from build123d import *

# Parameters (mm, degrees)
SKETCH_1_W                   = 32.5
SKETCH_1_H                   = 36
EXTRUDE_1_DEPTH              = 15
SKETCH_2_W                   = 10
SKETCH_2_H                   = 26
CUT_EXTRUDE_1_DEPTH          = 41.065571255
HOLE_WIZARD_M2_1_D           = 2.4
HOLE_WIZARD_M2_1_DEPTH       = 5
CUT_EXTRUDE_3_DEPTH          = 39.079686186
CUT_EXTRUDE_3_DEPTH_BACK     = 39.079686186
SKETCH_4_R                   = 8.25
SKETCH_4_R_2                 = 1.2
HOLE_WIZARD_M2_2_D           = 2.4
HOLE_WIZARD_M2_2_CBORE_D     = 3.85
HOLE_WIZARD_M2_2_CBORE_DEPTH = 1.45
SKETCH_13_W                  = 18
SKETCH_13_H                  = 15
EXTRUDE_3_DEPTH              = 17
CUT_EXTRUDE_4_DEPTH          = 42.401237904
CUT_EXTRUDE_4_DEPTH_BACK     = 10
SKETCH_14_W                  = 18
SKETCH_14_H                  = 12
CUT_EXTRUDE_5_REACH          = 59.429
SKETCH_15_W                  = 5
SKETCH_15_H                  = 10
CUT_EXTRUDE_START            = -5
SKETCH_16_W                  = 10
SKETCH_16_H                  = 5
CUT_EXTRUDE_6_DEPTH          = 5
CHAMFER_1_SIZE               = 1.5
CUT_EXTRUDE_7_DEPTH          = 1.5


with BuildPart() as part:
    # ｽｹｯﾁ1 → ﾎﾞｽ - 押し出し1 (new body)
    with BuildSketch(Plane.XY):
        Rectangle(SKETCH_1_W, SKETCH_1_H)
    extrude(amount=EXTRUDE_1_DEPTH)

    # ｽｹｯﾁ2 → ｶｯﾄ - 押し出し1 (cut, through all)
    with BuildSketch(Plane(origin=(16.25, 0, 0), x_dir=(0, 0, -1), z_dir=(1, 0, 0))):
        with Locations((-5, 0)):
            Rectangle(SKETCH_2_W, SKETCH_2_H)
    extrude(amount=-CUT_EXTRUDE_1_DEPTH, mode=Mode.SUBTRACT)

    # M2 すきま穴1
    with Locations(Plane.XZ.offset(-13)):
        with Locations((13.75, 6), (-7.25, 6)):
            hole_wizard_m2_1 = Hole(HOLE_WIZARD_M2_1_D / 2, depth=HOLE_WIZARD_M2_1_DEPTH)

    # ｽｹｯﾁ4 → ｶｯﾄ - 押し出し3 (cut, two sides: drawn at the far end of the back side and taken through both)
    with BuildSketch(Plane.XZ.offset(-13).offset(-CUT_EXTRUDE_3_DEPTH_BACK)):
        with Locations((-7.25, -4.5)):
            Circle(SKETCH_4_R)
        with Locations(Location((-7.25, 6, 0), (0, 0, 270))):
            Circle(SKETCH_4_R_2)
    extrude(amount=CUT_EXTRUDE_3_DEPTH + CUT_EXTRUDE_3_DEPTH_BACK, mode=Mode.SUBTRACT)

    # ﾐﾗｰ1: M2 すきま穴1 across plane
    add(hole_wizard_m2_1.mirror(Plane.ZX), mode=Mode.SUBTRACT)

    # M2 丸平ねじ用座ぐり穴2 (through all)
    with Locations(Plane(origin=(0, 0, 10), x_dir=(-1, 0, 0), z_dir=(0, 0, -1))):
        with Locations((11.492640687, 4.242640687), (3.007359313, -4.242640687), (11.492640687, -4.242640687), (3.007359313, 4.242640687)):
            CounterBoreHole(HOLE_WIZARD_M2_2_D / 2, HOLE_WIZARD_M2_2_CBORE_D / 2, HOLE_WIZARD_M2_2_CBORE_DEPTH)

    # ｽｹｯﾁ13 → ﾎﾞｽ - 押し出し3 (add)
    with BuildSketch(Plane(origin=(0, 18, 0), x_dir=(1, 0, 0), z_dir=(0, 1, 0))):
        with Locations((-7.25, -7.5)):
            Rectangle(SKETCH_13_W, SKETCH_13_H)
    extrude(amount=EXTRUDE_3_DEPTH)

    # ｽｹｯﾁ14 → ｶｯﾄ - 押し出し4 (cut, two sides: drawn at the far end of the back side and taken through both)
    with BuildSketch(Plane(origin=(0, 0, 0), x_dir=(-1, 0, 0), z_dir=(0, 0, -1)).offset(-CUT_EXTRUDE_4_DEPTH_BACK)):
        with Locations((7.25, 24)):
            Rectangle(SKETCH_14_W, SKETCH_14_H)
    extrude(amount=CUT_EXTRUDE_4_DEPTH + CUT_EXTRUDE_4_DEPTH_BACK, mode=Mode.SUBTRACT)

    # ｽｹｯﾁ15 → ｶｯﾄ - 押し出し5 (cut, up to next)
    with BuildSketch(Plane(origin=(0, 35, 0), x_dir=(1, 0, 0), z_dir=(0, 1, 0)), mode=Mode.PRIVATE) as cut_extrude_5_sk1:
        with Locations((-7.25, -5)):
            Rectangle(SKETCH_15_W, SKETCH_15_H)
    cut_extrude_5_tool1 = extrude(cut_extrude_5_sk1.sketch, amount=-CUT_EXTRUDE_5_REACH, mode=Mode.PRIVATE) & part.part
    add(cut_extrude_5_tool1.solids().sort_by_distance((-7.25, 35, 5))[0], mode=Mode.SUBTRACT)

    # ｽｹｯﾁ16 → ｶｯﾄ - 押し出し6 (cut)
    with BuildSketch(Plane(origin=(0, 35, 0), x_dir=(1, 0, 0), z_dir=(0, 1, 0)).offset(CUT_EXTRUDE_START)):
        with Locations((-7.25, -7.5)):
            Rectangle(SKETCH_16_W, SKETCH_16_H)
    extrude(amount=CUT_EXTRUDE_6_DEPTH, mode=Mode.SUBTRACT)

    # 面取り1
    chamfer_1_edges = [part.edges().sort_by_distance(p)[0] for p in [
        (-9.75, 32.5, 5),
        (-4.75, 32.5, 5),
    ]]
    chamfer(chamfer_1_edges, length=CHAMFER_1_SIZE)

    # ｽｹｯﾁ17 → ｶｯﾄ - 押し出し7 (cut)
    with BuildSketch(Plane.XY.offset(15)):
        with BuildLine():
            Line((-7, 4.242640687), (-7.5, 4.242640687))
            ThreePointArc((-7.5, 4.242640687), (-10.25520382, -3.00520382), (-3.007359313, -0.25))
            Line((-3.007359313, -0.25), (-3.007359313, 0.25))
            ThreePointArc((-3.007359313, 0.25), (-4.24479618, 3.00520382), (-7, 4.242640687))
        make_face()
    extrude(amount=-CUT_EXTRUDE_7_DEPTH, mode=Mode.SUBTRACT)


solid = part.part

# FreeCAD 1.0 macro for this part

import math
import FreeCAD as App
import Part
import Sketcher

V = App.Vector


def edges_at(feature, points):
    """Names of the edges that pass closest to the given points."""
    edges = feature.Shape.Edges
    near = lambda p: min(range(len(edges)), key=lambda i: edges[i].distToShape(Part.Vertex(*p))[0])
    return sorted({f"Edge{near(p) + 1}" for p in points})

doc = App.newDocument("Part")
body = doc.addObject("PartDesign::Body", "Body")

# Sketch on XY plane
sketch1 = body.newObject("Sketcher::SketchObject", "Sketch")
sketch1.AttachmentSupport = (doc.getObject("XY_Plane"), [""])
sketch1.MapMode = "FlatFace"
sketch1.addGeometry(Part.LineSegment(V(-16.25, 18, 0), V(-16.25, -18, 0)), False)
sketch1.addGeometry(Part.LineSegment(V(-16.25, -18, 0), V(16.25, -18, 0)), False)
sketch1.addGeometry(Part.LineSegment(V(16.25, -18, 0), V(16.25, 18, 0)), False)
sketch1.addGeometry(Part.LineSegment(V(16.25, 18, 0), V(-16.25, 18, 0)), False)
sketch1.addConstraint(Sketcher.Constraint("Coincident", 0, 2, 1, 1))
sketch1.addConstraint(Sketcher.Constraint("Coincident", 1, 2, 2, 1))
sketch1.addConstraint(Sketcher.Constraint("Coincident", 2, 2, 3, 1))
sketch1.addConstraint(Sketcher.Constraint("Coincident", 3, 2, 0, 1))
sketch1.addConstraint(Sketcher.Constraint("Vertical", 0))
sketch1.addConstraint(Sketcher.Constraint("Horizontal", 1))
sketch1.addConstraint(Sketcher.Constraint("Vertical", 2))
sketch1.addConstraint(Sketcher.Constraint("Horizontal", 3))
sketch1.addConstraint(Sketcher.Constraint("Symmetric", 0, 2, 2, 2, -1, 1))
sketch1.addConstraint(Sketcher.Constraint("DistanceY", 0, 2, 0, 1, 36.0))
sketch1.addConstraint(Sketcher.Constraint("DistanceX", 1, 1, 1, 2, 32.5))
pad1 = body.newObject("PartDesign::Pad", "Pad")
pad1.Profile = sketch1
pad1.Length = 15

# Sketch on YZ plane
sketch2 = body.newObject("Sketcher::SketchObject", "Sketch001")
sketch2.AttachmentSupport = (doc.getObject("YZ_Plane"), [""])
sketch2.MapMode = "FlatFace"
sketch2.AttachmentOffset = App.Placement(V(0, 0, 16.25), App.Rotation())
sketch2.addGeometry(Part.LineSegment(V(13, 10, 0), V(-13, 10, 0)), False)
sketch2.addGeometry(Part.LineSegment(V(-13, 10, 0), V(-13, 0, 0)), False)
sketch2.addGeometry(Part.LineSegment(V(-13, 0, 0), V(13, 0, 0)), False)
sketch2.addGeometry(Part.LineSegment(V(13, 0, 0), V(13, 10, 0)), False)
sketch2.addConstraint(Sketcher.Constraint("Coincident", 0, 2, 1, 1))
sketch2.addConstraint(Sketcher.Constraint("Coincident", 1, 2, 2, 1))
sketch2.addConstraint(Sketcher.Constraint("Coincident", 2, 2, 3, 1))
sketch2.addConstraint(Sketcher.Constraint("Coincident", 3, 2, 0, 1))
sketch2.addConstraint(Sketcher.Constraint("Horizontal", 0))
sketch2.addConstraint(Sketcher.Constraint("Vertical", 1))
sketch2.addConstraint(Sketcher.Constraint("Horizontal", 2))
sketch2.addConstraint(Sketcher.Constraint("Vertical", 3))
sketch2.addConstraint(Sketcher.Constraint("Symmetric", 1, 2, 2, 2, -1, 1))
sketch2.addConstraint(Sketcher.Constraint("DistanceX", 0, 2, 0, 1, 26.0))
sketch2.addConstraint(Sketcher.Constraint("DistanceY", 1, 2, 1, 1, 10.0))
pocket1 = body.newObject("PartDesign::Pocket", "Pocket")
pocket1.Profile = sketch2
pocket1.Type = "ThroughAll"

# Sketch on XZ plane
sketch3 = body.newObject("Sketcher::SketchObject", "Sketch002")
sketch3.AttachmentSupport = (doc.getObject("XZ_Plane"), [""])
sketch3.MapMode = "FlatFace"
sketch3.AttachmentOffset = App.Placement(V(0, 0, -13), App.Rotation())
sketch3.addGeometry(Part.Circle(V(13.75, 6, 0), V(0, 0, 1), 1.2), False)
sketch3.addGeometry(Part.Circle(V(-7.25, 6, 0), V(0, 0, 1), 1.2), False)
sketch3.addConstraint(Sketcher.Constraint("Equal", 0, 1))
sketch3.addConstraint(Sketcher.Constraint("Horizontal", 0, 3, 1, 3))
sketch3.addConstraint(Sketcher.Constraint("Diameter", 0, 2.4))
sketch3.addConstraint(Sketcher.Constraint("DistanceY", -1, 1, 0, 3, 6.0))
sketch3.addConstraint(Sketcher.Constraint("DistanceX", 1, 3, 0, 3, 21.0))
sketch3.addConstraint(Sketcher.Constraint("DistanceX", -1, 1, 0, 3, 13.75))
doc.recompute()
hole = body.newObject("PartDesign::Hole", "Hole")
hole.Profile = sketch3
hole.ThreadType = "None"
hole.Diameter = 2.4
hole.DepthType = "Dimension"
hole.Depth = 5
hole.DrillPoint = "Flat"

# Sketch on XZ plane
sketch4 = body.newObject("Sketcher::SketchObject", "Sketch003")
sketch4.AttachmentSupport = (doc.getObject("XZ_Plane"), [""])
sketch4.MapMode = "FlatFace"
sketch4.AttachmentOffset = App.Placement(V(0, 0, -13), App.Rotation())
sketch4.addGeometry(Part.Circle(V(-7.25, -4.5, 0), V(0, 0, 1), 8.25), False)
sketch4.addGeometry(Part.Circle(V(-7.25, 6, 0), V(0, 0, 1), 1.2), False)
sketch4.addConstraint(Sketcher.Constraint("Vertical", 0, 3, 1, 3))
sketch4.addConstraint(Sketcher.Constraint("Diameter", 0, 16.5))
sketch4.addConstraint(Sketcher.Constraint("Diameter", 1, 2.4))
sketch4.addConstraint(Sketcher.Constraint("DistanceY", -1, 1, 1, 3, 6.0))
sketch4.addConstraint(Sketcher.Constraint("DistanceY", 0, 3, -1, 1, 4.5))
sketch4.addConstraint(Sketcher.Constraint("DistanceX", 0, 3, -1, 1, 7.25))
pocket2 = body.newObject("PartDesign::Pocket", "Pocket001")
pocket2.Profile = sketch4
pocket2.Type = "ThroughAll"
pocket2.Midplane = True
doc.recompute()

mirrored = body.newObject("PartDesign::Mirrored", "Mirrored")
mirrored.Originals = [hole]
mirrored.MirrorPlane = (doc.getObject("XZ_Plane"), [""])
body.Tip = mirrored

# Sketch on XY plane
sketch5 = body.newObject("Sketcher::SketchObject", "Sketch004")
sketch5.AttachmentSupport = (doc.getObject("XY_Plane"), [""])
sketch5.MapMode = "FlatFace"
sketch5.AttachmentOffset = App.Placement(V(0, 0, 10), App.Rotation())
sketch5.addGeometry(Part.Circle(V(-11.492641, 4.242641, 0), V(0, 0, 1), 1.2), False)
sketch5.addGeometry(Part.Circle(V(-3.007359, -4.242641, 0), V(0, 0, 1), 1.2), False)
sketch5.addGeometry(Part.Circle(V(-11.492641, -4.242641, 0), V(0, 0, 1), 1.2), False)
sketch5.addGeometry(Part.Circle(V(-3.007359, 4.242641, 0), V(0, 0, 1), 1.2), False)
sketch5.addConstraint(Sketcher.Constraint("Equal", 0, 1))
sketch5.addConstraint(Sketcher.Constraint("Equal", 1, 2))
sketch5.addConstraint(Sketcher.Constraint("Equal", 2, 3))
sketch5.addConstraint(Sketcher.Constraint("Symmetric", 0, 3, 2, 3, -1))
sketch5.addConstraint(Sketcher.Constraint("Symmetric", 1, 3, 3, 3, -1))
sketch5.addConstraint(Sketcher.Constraint("Horizontal", 1, 3, 2, 3))
sketch5.addConstraint(Sketcher.Constraint("Diameter", 0, 2.4))
sketch5.addConstraint(Sketcher.Constraint("DistanceX", 0, 3, -1, 1, 11.492641))
sketch5.addConstraint(Sketcher.Constraint("DistanceY", -1, 1, 0, 3, 4.242641))
sketch5.addConstraint(Sketcher.Constraint("DistanceX", 1, 3, -1, 1, 3.007359))
doc.recompute()
hole2 = body.newObject("PartDesign::Hole", "Hole001")
hole2.Profile = sketch5
hole2.ThreadType = "None"
hole2.Diameter = 2.4
hole2.DepthType = "ThroughAll"
hole2.HoleCutType = "Counterbore"
hole2.HoleCutDiameter = 3.85
hole2.HoleCutDepth = 1.45
hole2.Reversed = True

# Sketch on XZ plane
sketch6 = body.newObject("Sketcher::SketchObject", "Sketch005")
sketch6.AttachmentSupport = (doc.getObject("XZ_Plane"), [""])
sketch6.MapMode = "FlatFace"
sketch6.AttachmentOffset = App.Placement(V(0, 0, -18), App.Rotation())
sketch6.addGeometry(Part.LineSegment(V(-16.25, 0, 0), V(-16.25, 15, 0)), False)
sketch6.addGeometry(Part.LineSegment(V(-16.25, 15, 0), V(1.75, 15, 0)), False)
sketch6.addGeometry(Part.LineSegment(V(1.75, 15, 0), V(1.75, 0, 0)), False)
sketch6.addGeometry(Part.LineSegment(V(1.75, 0, 0), V(-16.25, 0, 0)), False)
sketch6.addConstraint(Sketcher.Constraint("Coincident", 0, 2, 1, 1))
sketch6.addConstraint(Sketcher.Constraint("Coincident", 1, 2, 2, 1))
sketch6.addConstraint(Sketcher.Constraint("Coincident", 2, 2, 3, 1))
sketch6.addConstraint(Sketcher.Constraint("Coincident", 3, 2, 0, 1))
sketch6.addConstraint(Sketcher.Constraint("Vertical", 0))
sketch6.addConstraint(Sketcher.Constraint("Horizontal", 1))
sketch6.addConstraint(Sketcher.Constraint("Vertical", 2))
sketch6.addConstraint(Sketcher.Constraint("Horizontal", 3))
sketch6.addConstraint(Sketcher.Constraint("PointOnObject", 2, 2, -1))
sketch6.addConstraint(Sketcher.Constraint("DistanceX", 1, 1, 1, 2, 18.0))
sketch6.addConstraint(Sketcher.Constraint("DistanceY", 0, 1, 0, 2, 15.0))
sketch6.addConstraint(Sketcher.Constraint("DistanceX", 0, 2, -1, 1, 16.25))
pad2 = body.newObject("PartDesign::Pad", "Pad001")
pad2.Profile = sketch6
pad2.Length = 17
pad2.Reversed = True

# Sketch on XY plane
sketch7 = body.newObject("Sketcher::SketchObject", "Sketch006")
sketch7.AttachmentSupport = (doc.getObject("XY_Plane"), [""])
sketch7.MapMode = "FlatFace"
sketch7.addGeometry(Part.LineSegment(V(1.75, 30, 0), V(1.75, 18, 0)), False)
sketch7.addGeometry(Part.LineSegment(V(1.75, 18, 0), V(-16.25, 18, 0)), False)
sketch7.addGeometry(Part.LineSegment(V(-16.25, 18, 0), V(-16.25, 30, 0)), False)
sketch7.addGeometry(Part.LineSegment(V(-16.25, 30, 0), V(1.75, 30, 0)), False)
sketch7.addConstraint(Sketcher.Constraint("Coincident", 0, 2, 1, 1))
sketch7.addConstraint(Sketcher.Constraint("Coincident", 1, 2, 2, 1))
sketch7.addConstraint(Sketcher.Constraint("Coincident", 2, 2, 3, 1))
sketch7.addConstraint(Sketcher.Constraint("Coincident", 3, 2, 0, 1))
sketch7.addConstraint(Sketcher.Constraint("Vertical", 0))
sketch7.addConstraint(Sketcher.Constraint("Horizontal", 1))
sketch7.addConstraint(Sketcher.Constraint("Vertical", 2))
sketch7.addConstraint(Sketcher.Constraint("Horizontal", 3))
sketch7.addConstraint(Sketcher.Constraint("DistanceX", 1, 2, 1, 1, 18.0))
sketch7.addConstraint(Sketcher.Constraint("DistanceY", 0, 2, 0, 1, 12.0))
sketch7.addConstraint(Sketcher.Constraint("DistanceY", -1, 1, 0, 2, 18.0))
sketch7.addConstraint(Sketcher.Constraint("DistanceX", -1, 1, 0, 2, 1.75))
pocket3 = body.newObject("PartDesign::Pocket", "Pocket002")
pocket3.Profile = sketch7
pocket3.Type = "TwoLengths"
pocket3.Length = 42.401238
pocket3.Length2 = 10

# Sketch on XZ plane
sketch8 = body.newObject("Sketcher::SketchObject", "Sketch007")
sketch8.AttachmentSupport = (doc.getObject("XZ_Plane"), [""])
sketch8.MapMode = "FlatFace"
sketch8.AttachmentOffset = App.Placement(V(0, 0, -35), App.Rotation())
sketch8.addGeometry(Part.LineSegment(V(-9.75, 0, 0), V(-9.75, 10, 0)), False)
sketch8.addGeometry(Part.LineSegment(V(-9.75, 10, 0), V(-4.75, 10, 0)), False)
sketch8.addGeometry(Part.LineSegment(V(-4.75, 10, 0), V(-4.75, 0, 0)), False)
sketch8.addGeometry(Part.LineSegment(V(-4.75, 0, 0), V(-9.75, 0, 0)), False)
sketch8.addConstraint(Sketcher.Constraint("Coincident", 0, 2, 1, 1))
sketch8.addConstraint(Sketcher.Constraint("Coincident", 1, 2, 2, 1))
sketch8.addConstraint(Sketcher.Constraint("Coincident", 2, 2, 3, 1))
sketch8.addConstraint(Sketcher.Constraint("Coincident", 3, 2, 0, 1))
sketch8.addConstraint(Sketcher.Constraint("Vertical", 0))
sketch8.addConstraint(Sketcher.Constraint("Horizontal", 1))
sketch8.addConstraint(Sketcher.Constraint("Vertical", 2))
sketch8.addConstraint(Sketcher.Constraint("Horizontal", 3))
sketch8.addConstraint(Sketcher.Constraint("PointOnObject", 2, 2, -1))
sketch8.addConstraint(Sketcher.Constraint("DistanceX", 1, 1, 1, 2, 5.0))
sketch8.addConstraint(Sketcher.Constraint("DistanceY", 0, 1, 0, 2, 10.0))
sketch8.addConstraint(Sketcher.Constraint("DistanceX", 0, 2, -1, 1, 9.75))
pocket4 = body.newObject("PartDesign::Pocket", "Pocket003")
pocket4.Profile = sketch8
pocket4.Type = "UpToFirst"
pocket4.Reversed = True

# Sketch on XZ plane
sketch9 = body.newObject("Sketcher::SketchObject", "Sketch008")
sketch9.AttachmentSupport = (doc.getObject("XZ_Plane"), [""])
sketch9.MapMode = "FlatFace"
sketch9.AttachmentOffset = App.Placement(V(0, 0, -30), App.Rotation())
sketch9.addGeometry(Part.LineSegment(V(-12.25, 5, 0), V(-12.25, 10, 0)), False)
sketch9.addGeometry(Part.LineSegment(V(-12.25, 10, 0), V(-2.25, 10, 0)), False)
sketch9.addGeometry(Part.LineSegment(V(-2.25, 10, 0), V(-2.25, 5, 0)), False)
sketch9.addGeometry(Part.LineSegment(V(-2.25, 5, 0), V(-12.25, 5, 0)), False)
sketch9.addConstraint(Sketcher.Constraint("Coincident", 0, 2, 1, 1))
sketch9.addConstraint(Sketcher.Constraint("Coincident", 1, 2, 2, 1))
sketch9.addConstraint(Sketcher.Constraint("Coincident", 2, 2, 3, 1))
sketch9.addConstraint(Sketcher.Constraint("Coincident", 3, 2, 0, 1))
sketch9.addConstraint(Sketcher.Constraint("Vertical", 0))
sketch9.addConstraint(Sketcher.Constraint("Horizontal", 1))
sketch9.addConstraint(Sketcher.Constraint("Vertical", 2))
sketch9.addConstraint(Sketcher.Constraint("Horizontal", 3))
sketch9.addConstraint(Sketcher.Constraint("DistanceX", 1, 1, 1, 2, 10.0))
sketch9.addConstraint(Sketcher.Constraint("DistanceY", 0, 1, 0, 2, 5.0))
sketch9.addConstraint(Sketcher.Constraint("DistanceY", -1, 1, 0, 2, 10.0))
sketch9.addConstraint(Sketcher.Constraint("DistanceX", 0, 2, -1, 1, 12.25))
pocket5 = body.newObject("PartDesign::Pocket", "Pocket004")
pocket5.Profile = sketch9
pocket5.Length = 5
doc.recompute()

chamfer = body.newObject("PartDesign::Chamfer", "Chamfer")
chamfer.Base = (pocket5, edges_at(pocket5, [(-9.75, 32.5, 5), (-4.75, 32.5, 5)]))
chamfer.Size = 1.5

# Sketch on XY plane
sketch10 = body.newObject("Sketcher::SketchObject", "Sketch009")
sketch10.AttachmentSupport = (doc.getObject("XY_Plane"), [""])
sketch10.MapMode = "FlatFace"
sketch10.AttachmentOffset = App.Placement(V(0, 0, 15), App.Rotation())
sketch10.addGeometry(Part.LineSegment(V(-7, 4.242641, 0), V(-7.5, 4.242641, 0)), False)
sketch10.addGeometry(Part.ArcOfCircle(Part.Circle(V(-7.25, 0, 0), V(0, 0, 1), 4.25), math.radians(93.372287), math.radians(356.627713)), False)
sketch10.addGeometry(Part.LineSegment(V(-3.007359, -0.25, 0), V(-3.007359, 0.25, 0)), False)
sketch10.addGeometry(Part.ArcOfCircle(Part.Circle(V(-7.25, 0, 0), V(0, 0, 1), 4.25), math.radians(3.372287), math.radians(86.627713)), False)
sketch10.addConstraint(Sketcher.Constraint("Coincident", 0, 2, 1, 1))
sketch10.addConstraint(Sketcher.Constraint("Coincident", 1, 2, 2, 1))
sketch10.addConstraint(Sketcher.Constraint("Coincident", 2, 2, 3, 1))
sketch10.addConstraint(Sketcher.Constraint("Coincident", 3, 2, 0, 1))
sketch10.addConstraint(Sketcher.Constraint("Horizontal", 0))
sketch10.addConstraint(Sketcher.Constraint("Vertical", 2))
sketch10.addConstraint(Sketcher.Constraint("Coincident", 3, 3, 1, 3))
sketch10.addConstraint(Sketcher.Constraint("Equal", 1, 3))
sketch10.addConstraint(Sketcher.Constraint("PointOnObject", 1, 3, -1))
sketch10.addConstraint(Sketcher.Constraint("Equal", 0, 2))
sketch10.addConstraint(Sketcher.Constraint("Radius", 1, 4.25))
sketch10.addConstraint(Sketcher.Constraint("DistanceX", 0, 2, 0, 1, 0.5))
sketch10.addConstraint(Sketcher.Constraint("DistanceX", 3, 2, -1, 1, 7.0))
pocket6 = body.newObject("PartDesign::Pocket", "Pocket005")
pocket6.Profile = sketch10
pocket6.Length = 1.5

doc.recompute()
